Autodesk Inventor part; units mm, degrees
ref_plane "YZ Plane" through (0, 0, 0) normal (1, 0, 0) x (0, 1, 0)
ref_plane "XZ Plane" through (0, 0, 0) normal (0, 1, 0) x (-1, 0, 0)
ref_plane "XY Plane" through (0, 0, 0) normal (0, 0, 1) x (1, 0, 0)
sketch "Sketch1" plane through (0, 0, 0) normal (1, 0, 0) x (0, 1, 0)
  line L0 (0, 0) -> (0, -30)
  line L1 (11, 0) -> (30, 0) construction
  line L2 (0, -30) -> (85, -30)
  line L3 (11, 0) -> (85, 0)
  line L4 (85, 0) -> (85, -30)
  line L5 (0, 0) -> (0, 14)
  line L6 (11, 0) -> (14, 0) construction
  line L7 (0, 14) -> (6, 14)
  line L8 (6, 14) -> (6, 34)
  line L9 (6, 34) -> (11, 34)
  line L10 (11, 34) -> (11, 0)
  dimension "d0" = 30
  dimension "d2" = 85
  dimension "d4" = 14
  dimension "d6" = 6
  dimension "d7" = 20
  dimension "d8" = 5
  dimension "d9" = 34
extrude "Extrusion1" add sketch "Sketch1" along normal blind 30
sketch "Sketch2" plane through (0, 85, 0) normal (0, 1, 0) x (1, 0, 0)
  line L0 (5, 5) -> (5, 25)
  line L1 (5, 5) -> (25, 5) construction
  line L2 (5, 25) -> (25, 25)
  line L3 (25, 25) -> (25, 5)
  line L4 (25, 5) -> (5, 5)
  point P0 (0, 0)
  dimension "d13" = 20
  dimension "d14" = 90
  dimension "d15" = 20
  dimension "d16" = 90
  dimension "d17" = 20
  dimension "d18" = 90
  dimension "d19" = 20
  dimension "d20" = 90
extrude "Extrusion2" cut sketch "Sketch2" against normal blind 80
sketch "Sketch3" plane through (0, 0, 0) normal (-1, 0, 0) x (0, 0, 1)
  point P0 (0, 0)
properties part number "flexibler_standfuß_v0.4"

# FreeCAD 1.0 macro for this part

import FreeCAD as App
import Part
import Sketcher

V = App.Vector
Q = App.Units.Quantity

doc = App.newDocument("Part")
body = doc.addObject("PartDesign::Body", "Body")

# Sketch on YZ plane
sketch1 = body.newObject("Sketcher::SketchObject", "Sketch")
sketch1.AttachmentSupport = (doc.getObject("YZ_Plane"), [""])
sketch1.MapMode = "FlatFace"
sketch1.addGeometry(Part.LineSegment(V(0, 14, 0), V(0, -30, 0)), False)
sketch1.addGeometry(Part.LineSegment(V(0, -30, 0), V(85, -30, 0)), False)
sketch1.addGeometry(Part.LineSegment(V(85, -30, 0), V(85, 0, 0)), False)
sketch1.addGeometry(Part.LineSegment(V(85, 0, 0), V(11, 0, 0)), False)
sketch1.addGeometry(Part.LineSegment(V(11, 0, 0), V(11, 34, 0)), False)
sketch1.addGeometry(Part.LineSegment(V(11, 34, 0), V(6, 34, 0)), False)
sketch1.addGeometry(Part.LineSegment(V(6, 34, 0), V(6, 14, 0)), False)
sketch1.addGeometry(Part.LineSegment(V(6, 14, 0), V(0, 14, 0)), False)
sketch1.addConstraint(Sketcher.Constraint("Coincident", 0, 2, 1, 1))
sketch1.addConstraint(Sketcher.Constraint("Coincident", 1, 2, 2, 1))
sketch1.addConstraint(Sketcher.Constraint("Coincident", 2, 2, 3, 1))
sketch1.addConstraint(Sketcher.Constraint("Coincident", 3, 2, 4, 1))
sketch1.addConstraint(Sketcher.Constraint("Coincident", 4, 2, 5, 1))
sketch1.addConstraint(Sketcher.Constraint("Coincident", 5, 2, 6, 1))
sketch1.addConstraint(Sketcher.Constraint("Coincident", 6, 2, 7, 1))
sketch1.addConstraint(Sketcher.Constraint("Coincident", 7, 2, 0, 1))
sketch1.addConstraint(Sketcher.Constraint("Vertical", 0))
sketch1.addConstraint(Sketcher.Constraint("Horizontal", 1))
sketch1.addConstraint(Sketcher.Constraint("Vertical", 2))
sketch1.addConstraint(Sketcher.Constraint("Horizontal", 3))
sketch1.addConstraint(Sketcher.Constraint("Vertical", 4))
sketch1.addConstraint(Sketcher.Constraint("Horizontal", 5))
sketch1.addConstraint(Sketcher.Constraint("Vertical", 6))
sketch1.addConstraint(Sketcher.Constraint("Horizontal", 7))
sketch1.addConstraint(Sketcher.Constraint("PointOnObject", 0, 2, -2))
sketch1.addConstraint(Sketcher.Constraint("PointOnObject", 2, 2, -1))
sketch1.addConstraint(Sketcher.Constraint("DistanceX", 1, 1, 1, 2, Q("85 mm")))
sketch1.addConstraint(Sketcher.Constraint("DistanceX", 5, 2, 5, 1, Q("5 mm")))
sketch1.addConstraint(Sketcher.Constraint("DistanceX", 7, 2, 7, 1, Q("6 mm")))
sketch1.addConstraint(Sketcher.Constraint("DistanceY", 2, 1, 2, 2, Q("30 mm")))
sketch1.addConstraint(Sketcher.Constraint("DistanceY", 4, 1, 4, 2, Q("34 mm")))
sketch1.addConstraint(Sketcher.Constraint("DistanceY", 6, 2, 6, 1, Q("20 mm")))
pad1 = body.newObject("PartDesign::Pad", "Pad")
pad1.Profile = sketch1
pad1.Length = 30

# Sketch on XZ plane
sketch2 = body.newObject("Sketcher::SketchObject", "Sketch001")
sketch2.AttachmentSupport = (doc.getObject("XZ_Plane"), [""])
sketch2.MapMode = "FlatFace"
sketch2.AttachmentOffset = App.Placement(V(0, 0, -85), App.Rotation())
sketch2.addGeometry(Part.LineSegment(V(5, -25, 0), V(5, -5, 0)), False)
sketch2.addGeometry(Part.LineSegment(V(5, -5, 0), V(25, -5, 0)), False)
sketch2.addGeometry(Part.LineSegment(V(25, -5, 0), V(25, -25, 0)), False)
sketch2.addGeometry(Part.LineSegment(V(25, -25, 0), V(5, -25, 0)), False)
sketch2.addConstraint(Sketcher.Constraint("Coincident", 0, 2, 1, 1))
sketch2.addConstraint(Sketcher.Constraint("Coincident", 1, 2, 2, 1))
sketch2.addConstraint(Sketcher.Constraint("Coincident", 2, 2, 3, 1))
sketch2.addConstraint(Sketcher.Constraint("Coincident", 3, 2, 0, 1))
sketch2.addConstraint(Sketcher.Constraint("Vertical", 0))
sketch2.addConstraint(Sketcher.Constraint("Horizontal", 1))
sketch2.addConstraint(Sketcher.Constraint("Vertical", 2))
sketch2.addConstraint(Sketcher.Constraint("Horizontal", 3))
sketch2.addConstraint(Sketcher.Constraint("Equal", 3, 0))
sketch2.addConstraint(Sketcher.Constraint("DistanceX", 1, 1, 1, 2, Q("20 mm")))
sketch2.addConstraint(Sketcher.Constraint("DistanceX", -1, 1, 0, 2, Q("5 mm")))
sketch2.addConstraint(Sketcher.Constraint("DistanceY", 0, 2, -1, 1, Q("5 mm")))
pocket1 = body.newObject("PartDesign::Pocket", "Pocket")
pocket1.Profile = sketch2
pocket1.Length = 80
pocket1.Reversed = True

doc.recompute()
